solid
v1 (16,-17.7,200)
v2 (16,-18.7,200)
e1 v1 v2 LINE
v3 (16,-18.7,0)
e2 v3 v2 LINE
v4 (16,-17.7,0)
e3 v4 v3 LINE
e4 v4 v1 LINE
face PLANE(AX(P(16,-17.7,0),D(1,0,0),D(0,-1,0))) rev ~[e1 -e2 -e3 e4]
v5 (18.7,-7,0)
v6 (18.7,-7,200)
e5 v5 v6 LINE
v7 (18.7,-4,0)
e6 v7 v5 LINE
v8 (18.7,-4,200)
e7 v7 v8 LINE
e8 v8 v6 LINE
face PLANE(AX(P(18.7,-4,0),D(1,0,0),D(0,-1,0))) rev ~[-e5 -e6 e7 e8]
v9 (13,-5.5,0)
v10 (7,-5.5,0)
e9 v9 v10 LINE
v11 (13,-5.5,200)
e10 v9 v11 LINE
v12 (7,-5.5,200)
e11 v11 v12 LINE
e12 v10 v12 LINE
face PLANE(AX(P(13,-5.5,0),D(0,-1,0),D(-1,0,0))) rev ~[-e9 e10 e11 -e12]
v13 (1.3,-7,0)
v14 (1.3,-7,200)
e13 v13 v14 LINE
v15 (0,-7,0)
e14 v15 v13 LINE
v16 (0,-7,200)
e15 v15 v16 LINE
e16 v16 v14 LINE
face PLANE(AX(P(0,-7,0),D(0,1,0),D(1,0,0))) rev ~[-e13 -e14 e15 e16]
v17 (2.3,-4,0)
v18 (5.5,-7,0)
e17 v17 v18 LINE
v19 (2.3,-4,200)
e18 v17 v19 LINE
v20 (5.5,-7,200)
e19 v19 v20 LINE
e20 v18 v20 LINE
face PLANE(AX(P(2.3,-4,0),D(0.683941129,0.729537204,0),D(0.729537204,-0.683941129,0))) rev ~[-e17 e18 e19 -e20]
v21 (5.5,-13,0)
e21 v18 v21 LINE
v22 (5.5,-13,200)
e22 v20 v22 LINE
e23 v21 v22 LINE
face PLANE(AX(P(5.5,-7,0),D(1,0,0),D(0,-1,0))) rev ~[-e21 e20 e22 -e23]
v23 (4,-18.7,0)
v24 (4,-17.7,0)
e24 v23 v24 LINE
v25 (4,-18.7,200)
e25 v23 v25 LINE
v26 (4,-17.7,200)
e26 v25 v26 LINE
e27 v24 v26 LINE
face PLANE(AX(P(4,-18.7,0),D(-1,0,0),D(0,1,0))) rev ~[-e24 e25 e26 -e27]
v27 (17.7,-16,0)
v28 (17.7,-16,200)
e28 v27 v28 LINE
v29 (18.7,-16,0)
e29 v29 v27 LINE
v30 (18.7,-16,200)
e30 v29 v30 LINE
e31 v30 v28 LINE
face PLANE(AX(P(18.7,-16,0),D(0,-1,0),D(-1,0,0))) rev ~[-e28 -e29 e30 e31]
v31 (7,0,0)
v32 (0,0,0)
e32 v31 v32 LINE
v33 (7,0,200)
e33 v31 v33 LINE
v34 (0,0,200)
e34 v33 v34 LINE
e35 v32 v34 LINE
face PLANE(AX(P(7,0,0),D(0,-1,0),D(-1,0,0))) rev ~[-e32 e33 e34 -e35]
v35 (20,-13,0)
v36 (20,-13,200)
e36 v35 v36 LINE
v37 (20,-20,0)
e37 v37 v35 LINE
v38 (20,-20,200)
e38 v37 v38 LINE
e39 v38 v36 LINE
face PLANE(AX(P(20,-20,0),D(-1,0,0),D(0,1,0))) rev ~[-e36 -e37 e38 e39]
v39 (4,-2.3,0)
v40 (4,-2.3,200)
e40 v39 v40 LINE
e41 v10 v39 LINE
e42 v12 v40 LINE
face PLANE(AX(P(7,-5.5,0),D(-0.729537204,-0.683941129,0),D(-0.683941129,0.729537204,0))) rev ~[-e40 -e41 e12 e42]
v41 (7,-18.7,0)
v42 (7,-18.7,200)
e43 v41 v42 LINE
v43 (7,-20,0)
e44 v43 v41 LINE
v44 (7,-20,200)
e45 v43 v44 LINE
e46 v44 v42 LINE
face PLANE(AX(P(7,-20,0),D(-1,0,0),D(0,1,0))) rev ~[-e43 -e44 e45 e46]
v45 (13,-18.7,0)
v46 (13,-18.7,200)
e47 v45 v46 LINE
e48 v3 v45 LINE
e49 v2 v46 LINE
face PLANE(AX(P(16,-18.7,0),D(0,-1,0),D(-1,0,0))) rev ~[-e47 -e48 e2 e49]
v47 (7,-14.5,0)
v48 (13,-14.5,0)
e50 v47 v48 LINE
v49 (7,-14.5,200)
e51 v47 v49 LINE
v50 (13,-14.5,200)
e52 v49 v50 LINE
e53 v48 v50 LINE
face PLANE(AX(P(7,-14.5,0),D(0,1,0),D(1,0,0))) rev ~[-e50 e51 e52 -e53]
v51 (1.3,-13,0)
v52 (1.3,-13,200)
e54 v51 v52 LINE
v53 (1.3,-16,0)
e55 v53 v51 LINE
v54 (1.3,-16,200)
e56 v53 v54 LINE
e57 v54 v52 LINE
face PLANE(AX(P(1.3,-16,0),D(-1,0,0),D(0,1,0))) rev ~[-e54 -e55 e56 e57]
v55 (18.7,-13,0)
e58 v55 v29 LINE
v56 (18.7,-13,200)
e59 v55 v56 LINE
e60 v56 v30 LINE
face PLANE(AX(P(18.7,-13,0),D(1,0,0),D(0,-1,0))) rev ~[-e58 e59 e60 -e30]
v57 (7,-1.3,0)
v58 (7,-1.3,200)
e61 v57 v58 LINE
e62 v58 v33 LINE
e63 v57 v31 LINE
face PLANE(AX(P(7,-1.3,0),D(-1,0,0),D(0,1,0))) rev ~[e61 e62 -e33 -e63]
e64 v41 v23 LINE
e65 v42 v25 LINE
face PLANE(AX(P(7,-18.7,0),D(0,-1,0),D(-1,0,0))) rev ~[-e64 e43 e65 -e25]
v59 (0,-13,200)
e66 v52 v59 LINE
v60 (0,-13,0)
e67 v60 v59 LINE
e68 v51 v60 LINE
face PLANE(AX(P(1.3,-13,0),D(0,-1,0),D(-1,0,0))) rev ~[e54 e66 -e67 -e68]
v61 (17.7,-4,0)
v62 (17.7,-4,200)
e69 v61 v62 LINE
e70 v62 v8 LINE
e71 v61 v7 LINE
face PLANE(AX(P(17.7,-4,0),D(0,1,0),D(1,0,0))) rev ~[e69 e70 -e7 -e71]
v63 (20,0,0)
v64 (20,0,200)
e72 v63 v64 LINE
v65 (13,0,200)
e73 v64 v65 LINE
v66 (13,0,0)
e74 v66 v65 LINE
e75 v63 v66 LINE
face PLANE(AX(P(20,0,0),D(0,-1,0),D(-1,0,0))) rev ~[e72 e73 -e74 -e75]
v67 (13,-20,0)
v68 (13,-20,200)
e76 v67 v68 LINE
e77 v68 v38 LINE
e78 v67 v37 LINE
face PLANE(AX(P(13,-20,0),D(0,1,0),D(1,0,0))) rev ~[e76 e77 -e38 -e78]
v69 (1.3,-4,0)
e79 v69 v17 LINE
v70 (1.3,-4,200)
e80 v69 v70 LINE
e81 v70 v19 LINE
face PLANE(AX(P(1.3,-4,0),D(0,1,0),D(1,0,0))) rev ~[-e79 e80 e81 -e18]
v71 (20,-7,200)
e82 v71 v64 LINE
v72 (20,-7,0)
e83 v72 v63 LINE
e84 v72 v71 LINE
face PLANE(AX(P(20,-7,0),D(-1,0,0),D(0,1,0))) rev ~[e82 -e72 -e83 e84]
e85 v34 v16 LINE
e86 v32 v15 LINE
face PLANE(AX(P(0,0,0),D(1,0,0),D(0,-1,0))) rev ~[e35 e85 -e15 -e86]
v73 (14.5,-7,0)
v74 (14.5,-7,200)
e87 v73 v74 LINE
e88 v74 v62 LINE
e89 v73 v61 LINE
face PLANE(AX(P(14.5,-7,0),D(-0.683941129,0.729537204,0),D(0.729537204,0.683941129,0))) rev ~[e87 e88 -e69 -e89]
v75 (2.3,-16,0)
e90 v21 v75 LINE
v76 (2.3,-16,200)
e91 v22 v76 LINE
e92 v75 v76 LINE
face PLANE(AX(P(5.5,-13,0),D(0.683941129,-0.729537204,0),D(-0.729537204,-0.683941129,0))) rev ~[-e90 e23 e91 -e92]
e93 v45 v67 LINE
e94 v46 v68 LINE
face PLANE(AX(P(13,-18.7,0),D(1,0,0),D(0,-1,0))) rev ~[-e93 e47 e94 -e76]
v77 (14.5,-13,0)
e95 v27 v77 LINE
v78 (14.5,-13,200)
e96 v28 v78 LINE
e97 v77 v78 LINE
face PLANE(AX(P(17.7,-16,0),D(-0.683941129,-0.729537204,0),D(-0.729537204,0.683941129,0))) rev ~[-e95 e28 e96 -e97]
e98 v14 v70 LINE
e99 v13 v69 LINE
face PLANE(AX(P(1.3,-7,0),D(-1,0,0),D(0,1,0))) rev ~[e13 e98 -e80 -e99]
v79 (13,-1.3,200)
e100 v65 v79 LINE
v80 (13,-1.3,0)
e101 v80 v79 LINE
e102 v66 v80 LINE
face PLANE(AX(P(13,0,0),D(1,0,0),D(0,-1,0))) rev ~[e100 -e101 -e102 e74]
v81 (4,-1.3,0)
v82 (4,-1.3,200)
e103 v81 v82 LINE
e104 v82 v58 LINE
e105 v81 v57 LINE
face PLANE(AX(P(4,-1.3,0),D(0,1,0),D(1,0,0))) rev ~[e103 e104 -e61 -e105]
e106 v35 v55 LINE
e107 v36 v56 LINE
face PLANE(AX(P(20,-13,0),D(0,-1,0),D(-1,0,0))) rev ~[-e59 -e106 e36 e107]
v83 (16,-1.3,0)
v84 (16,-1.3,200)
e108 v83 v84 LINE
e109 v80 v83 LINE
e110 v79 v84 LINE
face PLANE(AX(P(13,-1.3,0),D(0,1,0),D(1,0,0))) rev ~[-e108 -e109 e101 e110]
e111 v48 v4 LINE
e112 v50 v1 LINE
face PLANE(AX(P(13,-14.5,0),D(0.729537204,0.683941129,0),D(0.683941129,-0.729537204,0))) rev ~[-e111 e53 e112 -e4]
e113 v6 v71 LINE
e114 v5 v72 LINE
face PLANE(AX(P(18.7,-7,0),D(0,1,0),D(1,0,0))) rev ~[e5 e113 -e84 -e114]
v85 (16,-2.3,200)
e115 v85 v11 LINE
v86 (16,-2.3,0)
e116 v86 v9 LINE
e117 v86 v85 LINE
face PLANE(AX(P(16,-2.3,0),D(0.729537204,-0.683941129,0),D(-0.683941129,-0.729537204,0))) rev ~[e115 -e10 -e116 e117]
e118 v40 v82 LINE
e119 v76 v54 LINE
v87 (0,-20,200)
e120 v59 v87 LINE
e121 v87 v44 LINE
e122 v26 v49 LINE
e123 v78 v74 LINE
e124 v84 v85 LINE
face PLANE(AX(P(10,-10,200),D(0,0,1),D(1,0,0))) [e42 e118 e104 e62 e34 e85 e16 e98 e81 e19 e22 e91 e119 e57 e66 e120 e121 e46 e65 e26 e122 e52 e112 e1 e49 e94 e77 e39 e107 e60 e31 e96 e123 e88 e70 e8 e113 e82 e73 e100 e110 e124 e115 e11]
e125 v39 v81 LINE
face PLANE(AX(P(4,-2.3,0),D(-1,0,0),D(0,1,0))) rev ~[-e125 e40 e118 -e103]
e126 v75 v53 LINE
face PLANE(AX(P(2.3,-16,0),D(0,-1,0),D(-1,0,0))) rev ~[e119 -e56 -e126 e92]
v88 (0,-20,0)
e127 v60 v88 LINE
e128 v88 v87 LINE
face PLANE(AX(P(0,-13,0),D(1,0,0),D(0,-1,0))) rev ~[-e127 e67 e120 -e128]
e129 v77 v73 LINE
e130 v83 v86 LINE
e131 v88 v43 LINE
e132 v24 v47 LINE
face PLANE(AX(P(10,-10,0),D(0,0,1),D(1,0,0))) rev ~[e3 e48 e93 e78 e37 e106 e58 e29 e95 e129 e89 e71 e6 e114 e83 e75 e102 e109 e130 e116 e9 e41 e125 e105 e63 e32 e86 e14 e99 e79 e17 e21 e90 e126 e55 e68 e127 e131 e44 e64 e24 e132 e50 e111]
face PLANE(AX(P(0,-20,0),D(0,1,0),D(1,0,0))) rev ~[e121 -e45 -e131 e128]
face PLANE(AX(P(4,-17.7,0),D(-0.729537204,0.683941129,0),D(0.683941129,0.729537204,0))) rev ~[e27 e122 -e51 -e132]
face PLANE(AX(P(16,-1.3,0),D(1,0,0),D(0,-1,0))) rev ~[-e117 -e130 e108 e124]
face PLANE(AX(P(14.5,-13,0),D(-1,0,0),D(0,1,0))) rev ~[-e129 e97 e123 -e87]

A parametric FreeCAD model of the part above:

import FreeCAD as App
import Part
import Sketcher
from FreeCAD import Vector
Q = App.Units.Quantity

doc = App.newDocument("Part")
body = doc.addObject("PartDesign::Body", "Body")

sketch1 = doc.addObject("Sketcher::SketchObject", "Sketch")
body.addObject(sketch1)
sketch1.AttachmentSupport = (doc.XY_Plane, [""])
sketch1.MapMode = "FlatFace"
sketch1.addGeometry([
    Part.LineSegment(Vector(20, 0, 0), Vector(13, 0, 0)),
    Part.LineSegment(Vector(13, 0, 0), Vector(13, -1.3, 0)),
    Part.LineSegment(Vector(13, -1.3, 0), Vector(16, -1.3, 0)),
    Part.LineSegment(Vector(16, -1.3, 0), Vector(16, -2.3, 0)),
    Part.LineSegment(Vector(16, -2.3, 0), Vector(13, -5.5, 0)),
    Part.LineSegment(Vector(13, -5.5, 0), Vector(7, -5.5, 0)),
    Part.LineSegment(Vector(7, -5.5, 0), Vector(4, -2.3, 0)),
    Part.LineSegment(Vector(4, -2.3, 0), Vector(4, -1.3, 0)),
    Part.LineSegment(Vector(4, -1.3, 0), Vector(7, -1.3, 0)),
    Part.LineSegment(Vector(7, -1.3, 0), Vector(7, 0, 0)),
    Part.LineSegment(Vector(7, 0, 0), Vector(0, 0, 0)),
    Part.LineSegment(Vector(0, 0, 0), Vector(0, -7, 0)),
    Part.LineSegment(Vector(0, -7, 0), Vector(1.3, -7, 0)),
    Part.LineSegment(Vector(1.3, -7, 0), Vector(1.3, -4, 0)),
    Part.LineSegment(Vector(1.3, -4, 0), Vector(2.3, -4, 0)),
    Part.LineSegment(Vector(2.3, -4, 0), Vector(5.5, -7, 0)),
    Part.LineSegment(Vector(5.5, -7, 0), Vector(5.5, -13, 0)),
    Part.LineSegment(Vector(5.5, -13, 0), Vector(2.3, -16, 0)),
    Part.LineSegment(Vector(2.3, -16, 0), Vector(1.3, -16, 0)),
    Part.LineSegment(Vector(1.3, -16, 0), Vector(1.3, -13, 0)),
    Part.LineSegment(Vector(1.3, -13, 0), Vector(0, -13, 0)),
    Part.LineSegment(Vector(0, -13, 0), Vector(0, -20, 0)),
    Part.LineSegment(Vector(0, -20, 0), Vector(7, -20, 0)),
    Part.LineSegment(Vector(7, -20, 0), Vector(7, -18.7, 0)),
    Part.LineSegment(Vector(7, -18.7, 0), Vector(4, -18.7, 0)),
    Part.LineSegment(Vector(4, -18.7, 0), Vector(4, -17.7, 0)),
    Part.LineSegment(Vector(4, -17.7, 0), Vector(7, -14.5, 0)),
    Part.LineSegment(Vector(7, -14.5, 0), Vector(13, -14.5, 0)),
    Part.LineSegment(Vector(13, -14.5, 0), Vector(16, -17.7, 0)),
    Part.LineSegment(Vector(16, -17.7, 0), Vector(16, -18.7, 0)),
    Part.LineSegment(Vector(16, -18.7, 0), Vector(13, -18.7, 0)),
    Part.LineSegment(Vector(13, -18.7, 0), Vector(13, -20, 0)),
    Part.LineSegment(Vector(13, -20, 0), Vector(20, -20, 0)),
    Part.LineSegment(Vector(20, -20, 0), Vector(20, -13, 0)),
    Part.LineSegment(Vector(20, -13, 0), Vector(18.7, -13, 0)),
    Part.LineSegment(Vector(18.7, -13, 0), Vector(18.7, -16, 0)),
    Part.LineSegment(Vector(18.7, -16, 0), Vector(17.7, -16, 0)),
    Part.LineSegment(Vector(17.7, -16, 0), Vector(14.5, -13, 0)),
    Part.LineSegment(Vector(14.5, -13, 0), Vector(14.5, -7, 0)),
    Part.LineSegment(Vector(14.5, -7, 0), Vector(17.7, -4, 0)),
    Part.LineSegment(Vector(17.7, -4, 0), Vector(18.7, -4, 0)),
    Part.LineSegment(Vector(18.7, -4, 0), Vector(18.7, -7, 0)),
    Part.LineSegment(Vector(18.7, -7, 0), Vector(20, -7, 0)),
    Part.LineSegment(Vector(20, -7, 0), Vector(20, 0, 0)),
], False)
sketch1.addConstraint([
    Sketcher.Constraint("Coincident", 0, 2, 1, 1),
    Sketcher.Constraint("Coincident", 1, 2, 2, 1),
    Sketcher.Constraint("Coincident", 2, 2, 3, 1),
    Sketcher.Constraint("Coincident", 3, 2, 4, 1),
    Sketcher.Constraint("Coincident", 4, 2, 5, 1),
    Sketcher.Constraint("Coincident", 5, 2, 6, 1),
    Sketcher.Constraint("Coincident", 6, 2, 7, 1),
    Sketcher.Constraint("Coincident", 7, 2, 8, 1),
    Sketcher.Constraint("Coincident", 8, 2, 9, 1),
    Sketcher.Constraint("Coincident", 9, 2, 10, 1),
    Sketcher.Constraint("Coincident", 10, 2, 11, 1),
    Sketcher.Constraint("Coincident", 11, 2, 12, 1),
    Sketcher.Constraint("Coincident", 12, 2, 13, 1),
    Sketcher.Constraint("Coincident", 13, 2, 14, 1),
    Sketcher.Constraint("Coincident", 14, 2, 15, 1),
    Sketcher.Constraint("Coincident", 15, 2, 16, 1),
    Sketcher.Constraint("Coincident", 16, 2, 17, 1),
    Sketcher.Constraint("Coincident", 17, 2, 18, 1),
    Sketcher.Constraint("Coincident", 18, 2, 19, 1),
    Sketcher.Constraint("Coincident", 19, 2, 20, 1),
    Sketcher.Constraint("Coincident", 20, 2, 21, 1),
    Sketcher.Constraint("Coincident", 21, 2, 22, 1),
    Sketcher.Constraint("Coincident", 22, 2, 23, 1),
    Sketcher.Constraint("Coincident", 23, 2, 24, 1),
    Sketcher.Constraint("Coincident", 24, 2, 25, 1),
    Sketcher.Constraint("Coincident", 25, 2, 26, 1),
    Sketcher.Constraint("Coincident", 26, 2, 27, 1),
    Sketcher.Constraint("Coincident", 27, 2, 28, 1),
    Sketcher.Constraint("Coincident", 28, 2, 29, 1),
    Sketcher.Constraint("Coincident", 29, 2, 30, 1),
    Sketcher.Constraint("Coincident", 30, 2, 31, 1),
    Sketcher.Constraint("Coincident", 31, 2, 32, 1),
    Sketcher.Constraint("Coincident", 32, 2, 33, 1),
    Sketcher.Constraint("Coincident", 33, 2, 34, 1),
    Sketcher.Constraint("Coincident", 34, 2, 35, 1),
    Sketcher.Constraint("Coincident", 35, 2, 36, 1),
    Sketcher.Constraint("Coincident", 36, 2, 37, 1),
    Sketcher.Constraint("Coincident", 37, 2, 38, 1),
    Sketcher.Constraint("Coincident", 38, 2, 39, 1),
    Sketcher.Constraint("Coincident", 39, 2, 40, 1),
    Sketcher.Constraint("Coincident", 40, 2, 41, 1),
    Sketcher.Constraint("Coincident", 41, 2, 42, 1),
    Sketcher.Constraint("Coincident", 42, 2, 43, 1),
    Sketcher.Constraint("Coincident", 43, 2, 0, 1),
    Sketcher.Constraint("Horizontal", 0),
    Sketcher.Constraint("Vertical", 1),
    Sketcher.Constraint("Horizontal", 2),
    Sketcher.Constraint("Vertical", 3),
    Sketcher.Constraint("Horizontal", 5),
    Sketcher.Constraint("Vertical", 7),
    Sketcher.Constraint("Horizontal", 8),
    Sketcher.Constraint("Vertical", 9),
    Sketcher.Constraint("Horizontal", 10),
    Sketcher.Constraint("Vertical", 11),
    Sketcher.Constraint("Horizontal", 12),
    Sketcher.Constraint("Vertical", 13),
    Sketcher.Constraint("Horizontal", 14),
    Sketcher.Constraint("Vertical", 16),
    Sketcher.Constraint("Horizontal", 18),
    Sketcher.Constraint("Vertical", 19),
    Sketcher.Constraint("Horizontal", 20),
    Sketcher.Constraint("Vertical", 21),
    Sketcher.Constraint("Horizontal", 22),
    Sketcher.Constraint("Vertical", 23),
    Sketcher.Constraint("Horizontal", 24),
    Sketcher.Constraint("Vertical", 25),
    Sketcher.Constraint("Horizontal", 27),
    Sketcher.Constraint("Vertical", 29),
    Sketcher.Constraint("Horizontal", 30),
    Sketcher.Constraint("Vertical", 31),
    Sketcher.Constraint("Horizontal", 32),
    Sketcher.Constraint("Vertical", 33),
    Sketcher.Constraint("Horizontal", 34),
    Sketcher.Constraint("Vertical", 35),
    Sketcher.Constraint("Horizontal", 36),
    Sketcher.Constraint("Vertical", 38),
    Sketcher.Constraint("Horizontal", 40),
    Sketcher.Constraint("Vertical", 41),
    Sketcher.Constraint("Horizontal", 42),
    Sketcher.Constraint("Vertical", 43),
    Sketcher.Constraint("Coincident", 10, 2, -1, 1),
    Sketcher.Constraint("PointOnObject", 0, 2, -1),
    Sketcher.Constraint("PointOnObject", 20, 2, -2),
    Sketcher.Constraint("Perpendicular", 4, 15),
    Sketcher.Constraint("Perpendicular", 6, 17),
    Sketcher.Constraint("Perpendicular", 15, 26),
    Sketcher.Constraint("Perpendicular", 17, 28),
    Sketcher.Constraint("Perpendicular", 26, 37),
    Sketcher.Constraint("Perpendicular", 28, 39),
    Sketcher.Constraint("Horizontal", 3, 2, 6, 2),
    Sketcher.Constraint("Horizontal", 2, 2, 7, 2),
    Sketcher.Constraint("Horizontal", 12, 2, 15, 2),
    Sketcher.Constraint("Horizontal", 16, 2, 19, 2),
    Sketcher.Constraint("Horizontal", 25, 2, 28, 2),
    Sketcher.Constraint("Horizontal", 24, 2, 29, 2),
    Sketcher.Constraint("Horizontal", 22, 2, 31, 2),
    Sketcher.Constraint("Horizontal", 20, 2, 33, 2),
    Sketcher.Constraint("Horizontal", 18, 2, 35, 2),
    Sketcher.Constraint("Horizontal", 34, 2, 37, 2),
    Sketcher.Constraint("Horizontal", 15, 2, 38, 2),
    Sketcher.Constraint("Horizontal", 14, 2, 39, 2),
    Sketcher.Constraint("Horizontal", 38, 2, 41, 2),
    Sketcher.Constraint("Vertical", 1, 2, 4, 2),
    Sketcher.Constraint("Vertical", 5, 2, 8, 2),
    Sketcher.Constraint("Vertical", 14, 2, 17, 2),
    Sketcher.Constraint("Vertical", 13, 2, 18, 2),
    Sketcher.Constraint("Vertical", 9, 2, 22, 2),
    Sketcher.Constraint("Vertical", 7, 2, 24, 2),
    Sketcher.Constraint("Vertical", 23, 2, 26, 2),
    Sketcher.Constraint("Vertical", 4, 2, 27, 2),
    Sketcher.Constraint("Vertical", 3, 2, 28, 2),
    Sketcher.Constraint("Vertical", 27, 2, 30, 2),
    Sketcher.Constraint("Vertical", 35, 2, 40, 2),
    Sketcher.Constraint("Vertical", 33, 2, 42, 2),
    Sketcher.Constraint("Equal", 0, 10),
    Sketcher.Constraint("Equal", 20, 34),
    Sketcher.Constraint("Equal", 18, 36),
    Sketcher.Constraint("Equal", 42, 1),
    Sketcher.Constraint("Equal", 40, 3),
    Sketcher.Constraint("Equal", 32, 11),
    Sketcher.Constraint("Equal", 30, 13),
    Sketcher.Constraint("Equal", 27, 16),
    Sketcher.Constraint("Equal", 11, 21),
    Sketcher.Constraint("Equal", 9, 23),
    Sketcher.Constraint("Equal", 7, 25),
    Sketcher.Constraint("DistanceX", 0, 2, 0, 1, Q("7 mm")),
    Sketcher.Constraint("DistanceX", 2, 1, 2, 2, Q("3 mm")),
    Sketcher.Constraint("DistanceX", 5, 2, 5, 1, Q("6 mm")),
    Sketcher.Constraint("DistanceX", 14, 1, 14, 2, Q("1 mm")),
    Sketcher.Constraint("DistanceX", 12, 1, 12, 2, Q("1.3 mm")),
    Sketcher.Constraint("DistanceY", 27, 2, 4, 2, Q("9 mm")),
])
pad1 = doc.addObject("PartDesign::Pad", "Pad")
body.addObject(pad1)
pad1.Profile = sketch1
pad1.Length = 200

doc.recompute()
